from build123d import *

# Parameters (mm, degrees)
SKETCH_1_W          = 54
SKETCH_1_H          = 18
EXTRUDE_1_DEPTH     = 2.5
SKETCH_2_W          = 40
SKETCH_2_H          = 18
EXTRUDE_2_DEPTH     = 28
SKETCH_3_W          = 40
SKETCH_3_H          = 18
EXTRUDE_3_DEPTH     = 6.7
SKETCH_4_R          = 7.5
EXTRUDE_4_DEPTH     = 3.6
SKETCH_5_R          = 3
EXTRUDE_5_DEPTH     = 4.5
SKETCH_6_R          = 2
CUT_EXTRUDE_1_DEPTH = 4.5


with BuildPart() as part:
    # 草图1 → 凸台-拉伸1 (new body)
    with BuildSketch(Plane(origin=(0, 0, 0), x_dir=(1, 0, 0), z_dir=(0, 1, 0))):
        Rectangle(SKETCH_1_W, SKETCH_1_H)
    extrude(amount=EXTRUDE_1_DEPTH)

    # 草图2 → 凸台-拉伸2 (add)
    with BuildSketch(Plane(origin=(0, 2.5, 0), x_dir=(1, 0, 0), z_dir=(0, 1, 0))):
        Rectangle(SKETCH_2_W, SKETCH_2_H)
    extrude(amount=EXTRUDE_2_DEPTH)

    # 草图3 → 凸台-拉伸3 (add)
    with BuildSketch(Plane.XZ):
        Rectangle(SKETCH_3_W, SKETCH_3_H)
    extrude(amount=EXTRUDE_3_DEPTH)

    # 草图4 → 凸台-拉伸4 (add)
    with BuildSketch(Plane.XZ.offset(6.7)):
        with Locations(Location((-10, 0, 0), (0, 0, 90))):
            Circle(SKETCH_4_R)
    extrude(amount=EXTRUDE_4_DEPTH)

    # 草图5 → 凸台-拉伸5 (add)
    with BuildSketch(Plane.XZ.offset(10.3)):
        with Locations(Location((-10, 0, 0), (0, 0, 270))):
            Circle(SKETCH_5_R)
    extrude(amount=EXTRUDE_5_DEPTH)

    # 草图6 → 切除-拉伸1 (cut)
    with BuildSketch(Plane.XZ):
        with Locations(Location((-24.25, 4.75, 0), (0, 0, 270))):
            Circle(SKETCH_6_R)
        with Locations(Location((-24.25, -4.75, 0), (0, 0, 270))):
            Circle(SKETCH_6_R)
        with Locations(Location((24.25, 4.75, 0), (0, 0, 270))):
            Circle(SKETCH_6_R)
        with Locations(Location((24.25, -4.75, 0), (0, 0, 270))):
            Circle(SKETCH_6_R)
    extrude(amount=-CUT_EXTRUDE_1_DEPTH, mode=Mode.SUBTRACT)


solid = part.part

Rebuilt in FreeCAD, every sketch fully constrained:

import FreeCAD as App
import Part
import Sketcher


def add_polygon(sketch, points):
    """Adds a closed chain of lines whose ends are joined by coincident constraints."""
    first, n = sketch.GeometryCount, len(points)
    for a, b in zip(points, points[1:] + points[:1]):
        sketch.addGeometry(Part.LineSegment(App.Vector(*a, 0), App.Vector(*b, 0)), False)
    for i in range(n):
        sketch.addConstraint(Sketcher.Constraint("Coincident", first + i, 2, first + (i + 1) % n, 1))

doc = App.newDocument("Part")
body = doc.addObject("PartDesign::Body", "Body")

sketch1 = body.newObject("Sketcher::SketchObject", "Sketch")
sketch1.AttachmentSupport = (doc.getObject("XZ_Plane"), [""])
sketch1.MapMode = "FlatFace"
add_polygon(sketch1, [(-27, -9), (-27, 9), (27, 9), (27, -9)])
sketch1.addConstraint([
    Sketcher.Constraint("Vertical", 0),
    Sketcher.Constraint("Horizontal", 1),
    Sketcher.Constraint("Vertical", 2),
    Sketcher.Constraint("Horizontal", 3),
    Sketcher.Constraint("Symmetric", 0, 2, 2, 2, -1, 1),
    Sketcher.Constraint("DistanceX", 1, 1, 1, 2, 54.0),
    Sketcher.Constraint("DistanceY", 0, 1, 0, 2, 18.0),
])
pad1 = body.newObject("PartDesign::Pad", "Pad")
pad1.Profile = sketch1
pad1.Length = 2.5
pad1.Reversed = True

sketch2 = body.newObject("Sketcher::SketchObject", "Sketch001")
sketch2.AttachmentSupport = (doc.getObject("XZ_Plane"), [""])
sketch2.MapMode = "FlatFace"
sketch2.AttachmentOffset = App.Placement(App.Vector(0, 0, -2.5), App.Rotation())
add_polygon(sketch2, [(-20, -9), (-20, 9), (20, 9), (20, -9)])
sketch2.addConstraint([
    Sketcher.Constraint("Vertical", 0),
    Sketcher.Constraint("Horizontal", 1),
    Sketcher.Constraint("Vertical", 2),
    Sketcher.Constraint("Horizontal", 3),
    Sketcher.Constraint("Symmetric", 0, 2, 2, 2, -1, 1),
    Sketcher.Constraint("DistanceX", 1, 1, 1, 2, 40.0),
    Sketcher.Constraint("DistanceY", 0, 1, 0, 2, 18.0),
])
pad2 = body.newObject("PartDesign::Pad", "Pad001")
pad2.Profile = sketch2
pad2.Length = 28
pad2.Reversed = True

sketch3 = body.newObject("Sketcher::SketchObject", "Sketch002")
sketch3.AttachmentSupport = (doc.getObject("XZ_Plane"), [""])
sketch3.MapMode = "FlatFace"
add_polygon(sketch3, [(-20, 9), (-20, -9), (20, -9), (20, 9)])
sketch3.addConstraint([
    Sketcher.Constraint("Vertical", 0),
    Sketcher.Constraint("Horizontal", 1),
    Sketcher.Constraint("Vertical", 2),
    Sketcher.Constraint("Horizontal", 3),
    Sketcher.Constraint("Symmetric", 0, 2, 2, 2, -1, 1),
    Sketcher.Constraint("DistanceX", 1, 1, 1, 2, 40.0),
    Sketcher.Constraint("DistanceY", 0, 2, 0, 1, 18.0),
])
pad3 = body.newObject("PartDesign::Pad", "Pad002")
pad3.Profile = sketch3
pad3.Length = 6.7

sketch4 = body.newObject("Sketcher::SketchObject", "Sketch003")
sketch4.AttachmentSupport = (doc.getObject("XZ_Plane"), [""])
sketch4.MapMode = "FlatFace"
sketch4.AttachmentOffset = App.Placement(App.Vector(0, 0, 6.7), App.Rotation())
sketch4.addGeometry(Part.Circle(App.Vector(-10, 0, 0), App.Vector(0, 0, 1), 8), False)
sketch4.addConstraint([
    Sketcher.Constraint("PointOnObject", 0, 3, -1),
    Sketcher.Constraint("Diameter", 0, 15.0),
    Sketcher.Constraint("DistanceX", 0, 3, -1, 1, 10.0),
])
pad4 = body.newObject("PartDesign::Pad", "Pad003")
pad4.Profile = sketch4
pad4.Length = 3.6

sketch5 = body.newObject("Sketcher::SketchObject", "Sketch004")
sketch5.AttachmentSupport = (doc.getObject("XZ_Plane"), [""])
sketch5.MapMode = "FlatFace"
sketch5.AttachmentOffset = App.Placement(App.Vector(0, 0, 10.3), App.Rotation())
sketch5.addGeometry(Part.Circle(App.Vector(-10, 0, 0), App.Vector(0, 0, 1), 3), False)
sketch5.addConstraint([
    Sketcher.Constraint("PointOnObject", 0, 3, -1),
    Sketcher.Constraint("Diameter", 0, 6.0),
    Sketcher.Constraint("DistanceX", 0, 3, -1, 1, 10.0),
])
pad5 = body.newObject("PartDesign::Pad", "Pad004")
pad5.Profile = sketch5
pad5.Length = 4.5

sketch6 = body.newObject("Sketcher::SketchObject", "Sketch005")
sketch6.AttachmentSupport = (doc.getObject("XZ_Plane"), [""])
sketch6.MapMode = "FlatFace"
sketch6.addGeometry([
    Part.Circle(App.Vector(-24.2, 4.8, 0), App.Vector(0, 0, 1), 2),
    Part.Circle(App.Vector(-24.2, -4.8, 0), App.Vector(0, 0, 1), 2),
    Part.Circle(App.Vector(24.2, 4.8, 0), App.Vector(0, 0, 1), 2),
    Part.Circle(App.Vector(24.2, -4.8, 0), App.Vector(0, 0, 1), 2),
], False)
sketch6.addConstraint([
    Sketcher.Constraint("Equal", 0, 1),
    Sketcher.Constraint("Equal", 1, 2),
    Sketcher.Constraint("Equal", 2, 3),
    Sketcher.Constraint("Symmetric", 1, 3, 2, 3, -1, 1),
    Sketcher.Constraint("Symmetric", 0, 3, 3, 3, -1, 1),
    Sketcher.Constraint("Symmetric", 0, 3, 2, 3, -2),
    Sketcher.Constraint("Diameter", 0, 4.0),
    Sketcher.Constraint("DistanceY", 1, 3, 0, 3, 9.5),
    Sketcher.Constraint("DistanceX", 0, 3, 2, 3, 48.5),
])
pocket1 = body.newObject("PartDesign::Pocket", "Pocket")
pocket1.Profile = sketch6
pocket1.Length = 4.5

doc.recompute()
